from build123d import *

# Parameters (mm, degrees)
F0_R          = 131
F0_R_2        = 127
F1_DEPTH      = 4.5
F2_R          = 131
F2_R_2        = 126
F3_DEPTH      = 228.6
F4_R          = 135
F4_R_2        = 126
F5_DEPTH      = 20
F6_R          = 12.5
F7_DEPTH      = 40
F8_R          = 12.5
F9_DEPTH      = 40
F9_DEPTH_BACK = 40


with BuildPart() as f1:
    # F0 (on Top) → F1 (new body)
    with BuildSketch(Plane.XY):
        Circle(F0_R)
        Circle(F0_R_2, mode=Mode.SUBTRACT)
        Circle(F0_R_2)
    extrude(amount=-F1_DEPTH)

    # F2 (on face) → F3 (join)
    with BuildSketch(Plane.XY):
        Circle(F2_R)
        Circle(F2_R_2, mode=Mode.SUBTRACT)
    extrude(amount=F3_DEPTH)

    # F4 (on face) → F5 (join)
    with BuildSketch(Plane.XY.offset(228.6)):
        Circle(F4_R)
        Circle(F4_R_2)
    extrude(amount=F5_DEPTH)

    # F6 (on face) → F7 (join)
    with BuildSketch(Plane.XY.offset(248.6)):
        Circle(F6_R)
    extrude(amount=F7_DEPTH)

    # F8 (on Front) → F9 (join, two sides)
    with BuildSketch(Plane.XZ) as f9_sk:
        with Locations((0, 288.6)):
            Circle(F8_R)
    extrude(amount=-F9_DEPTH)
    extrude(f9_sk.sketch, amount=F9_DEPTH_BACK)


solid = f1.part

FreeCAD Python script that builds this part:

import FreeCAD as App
import Part
import Sketcher
from FreeCAD import Vector

doc = App.newDocument("Part")
body = doc.addObject("PartDesign::Body", "Body")

sketch1 = body.newObject("Sketcher::SketchObject", "Sketch")
sketch1.AttachmentSupport = (doc.getObject("XY_Plane"), [""])
sketch1.MapMode = "FlatFace"
sketch1.addGeometry(Part.Circle(Vector(0, 0, 0), Vector(0, 0, 1), 131), False)
sketch1.addConstraint(Sketcher.Constraint("Coincident", 0, 3, -1, 1))
sketch1.addConstraint(Sketcher.Constraint("Diameter", 0, 262.0))
pad1 = body.newObject("PartDesign::Pad", "Pad")
pad1.Profile = sketch1
pad1.Length = 4.5
pad1.Reversed = True

sketch2 = body.newObject("Sketcher::SketchObject", "Sketch001")
sketch2.AttachmentSupport = (doc.getObject("XY_Plane"), [""])
sketch2.MapMode = "FlatFace"
sketch2.addGeometry(Part.Circle(Vector(0, 0, 0), Vector(0, 0, 1), 131), False)
sketch2.addGeometry(Part.Circle(Vector(0, 0, 0), Vector(0, 0, 1), 126), False)
sketch2.addConstraint(Sketcher.Constraint("Coincident", 0, 3, -1, 1))
sketch2.addConstraint(Sketcher.Constraint("Coincident", 1, 3, -1, 1))
sketch2.addConstraint(Sketcher.Constraint("Diameter", 0, 262.0))
sketch2.addConstraint(Sketcher.Constraint("Diameter", 1, 252.0))
pad2 = body.newObject("PartDesign::Pad", "Pad001")
pad2.Profile = sketch2
pad2.Length = 228.6

sketch3 = body.newObject("Sketcher::SketchObject", "Sketch002")
sketch3.AttachmentSupport = (doc.getObject("XY_Plane"), [""])
sketch3.MapMode = "FlatFace"
sketch3.AttachmentOffset = App.Placement(Vector(0, 0, 228.6), App.Rotation())
sketch3.addGeometry(Part.Circle(Vector(0, 0, 0), Vector(0, 0, 1), 135), False)
sketch3.addConstraint(Sketcher.Constraint("Coincident", 0, 3, -1, 1))
sketch3.addConstraint(Sketcher.Constraint("Diameter", 0, 270.0))
pad3 = body.newObject("PartDesign::Pad", "Pad002")
pad3.Profile = sketch3
pad3.Length = 20

sketch4 = body.newObject("Sketcher::SketchObject", "Sketch003")
sketch4.AttachmentSupport = (doc.getObject("XY_Plane"), [""])
sketch4.MapMode = "FlatFace"
sketch4.AttachmentOffset = App.Placement(Vector(0, 0, 248.6), App.Rotation())
sketch4.addGeometry(Part.Circle(Vector(0, 0, 0), Vector(0, 0, 1), 12.5), False)
sketch4.addConstraint(Sketcher.Constraint("Coincident", 0, 3, -1, 1))
sketch4.addConstraint(Sketcher.Constraint("Diameter", 0, 25.0))
pad4 = body.newObject("PartDesign::Pad", "Pad003")
pad4.Profile = sketch4
pad4.Length = 40

sketch5 = body.newObject("Sketcher::SketchObject", "Sketch004")
sketch5.AttachmentSupport = (doc.getObject("XZ_Plane"), [""])
sketch5.MapMode = "FlatFace"
sketch5.addGeometry(Part.Circle(Vector(0, 288.6, 0), Vector(0, 0, 1), 12.5), False)
sketch5.addConstraint(Sketcher.Constraint("PointOnObject", 0, 3, -2))
sketch5.addConstraint(Sketcher.Constraint("Diameter", 0, 25.0))
sketch5.addConstraint(Sketcher.Constraint("DistanceY", -1, 1, 0, 3, 288.6))
pad5 = body.newObject("PartDesign::Pad", "Pad004")
pad5.Profile = sketch5
pad5.Type = "TwoLengths"
pad5.Length = 40
pad5.Length2 = 40
pad5.Reversed = True

doc.recompute()
